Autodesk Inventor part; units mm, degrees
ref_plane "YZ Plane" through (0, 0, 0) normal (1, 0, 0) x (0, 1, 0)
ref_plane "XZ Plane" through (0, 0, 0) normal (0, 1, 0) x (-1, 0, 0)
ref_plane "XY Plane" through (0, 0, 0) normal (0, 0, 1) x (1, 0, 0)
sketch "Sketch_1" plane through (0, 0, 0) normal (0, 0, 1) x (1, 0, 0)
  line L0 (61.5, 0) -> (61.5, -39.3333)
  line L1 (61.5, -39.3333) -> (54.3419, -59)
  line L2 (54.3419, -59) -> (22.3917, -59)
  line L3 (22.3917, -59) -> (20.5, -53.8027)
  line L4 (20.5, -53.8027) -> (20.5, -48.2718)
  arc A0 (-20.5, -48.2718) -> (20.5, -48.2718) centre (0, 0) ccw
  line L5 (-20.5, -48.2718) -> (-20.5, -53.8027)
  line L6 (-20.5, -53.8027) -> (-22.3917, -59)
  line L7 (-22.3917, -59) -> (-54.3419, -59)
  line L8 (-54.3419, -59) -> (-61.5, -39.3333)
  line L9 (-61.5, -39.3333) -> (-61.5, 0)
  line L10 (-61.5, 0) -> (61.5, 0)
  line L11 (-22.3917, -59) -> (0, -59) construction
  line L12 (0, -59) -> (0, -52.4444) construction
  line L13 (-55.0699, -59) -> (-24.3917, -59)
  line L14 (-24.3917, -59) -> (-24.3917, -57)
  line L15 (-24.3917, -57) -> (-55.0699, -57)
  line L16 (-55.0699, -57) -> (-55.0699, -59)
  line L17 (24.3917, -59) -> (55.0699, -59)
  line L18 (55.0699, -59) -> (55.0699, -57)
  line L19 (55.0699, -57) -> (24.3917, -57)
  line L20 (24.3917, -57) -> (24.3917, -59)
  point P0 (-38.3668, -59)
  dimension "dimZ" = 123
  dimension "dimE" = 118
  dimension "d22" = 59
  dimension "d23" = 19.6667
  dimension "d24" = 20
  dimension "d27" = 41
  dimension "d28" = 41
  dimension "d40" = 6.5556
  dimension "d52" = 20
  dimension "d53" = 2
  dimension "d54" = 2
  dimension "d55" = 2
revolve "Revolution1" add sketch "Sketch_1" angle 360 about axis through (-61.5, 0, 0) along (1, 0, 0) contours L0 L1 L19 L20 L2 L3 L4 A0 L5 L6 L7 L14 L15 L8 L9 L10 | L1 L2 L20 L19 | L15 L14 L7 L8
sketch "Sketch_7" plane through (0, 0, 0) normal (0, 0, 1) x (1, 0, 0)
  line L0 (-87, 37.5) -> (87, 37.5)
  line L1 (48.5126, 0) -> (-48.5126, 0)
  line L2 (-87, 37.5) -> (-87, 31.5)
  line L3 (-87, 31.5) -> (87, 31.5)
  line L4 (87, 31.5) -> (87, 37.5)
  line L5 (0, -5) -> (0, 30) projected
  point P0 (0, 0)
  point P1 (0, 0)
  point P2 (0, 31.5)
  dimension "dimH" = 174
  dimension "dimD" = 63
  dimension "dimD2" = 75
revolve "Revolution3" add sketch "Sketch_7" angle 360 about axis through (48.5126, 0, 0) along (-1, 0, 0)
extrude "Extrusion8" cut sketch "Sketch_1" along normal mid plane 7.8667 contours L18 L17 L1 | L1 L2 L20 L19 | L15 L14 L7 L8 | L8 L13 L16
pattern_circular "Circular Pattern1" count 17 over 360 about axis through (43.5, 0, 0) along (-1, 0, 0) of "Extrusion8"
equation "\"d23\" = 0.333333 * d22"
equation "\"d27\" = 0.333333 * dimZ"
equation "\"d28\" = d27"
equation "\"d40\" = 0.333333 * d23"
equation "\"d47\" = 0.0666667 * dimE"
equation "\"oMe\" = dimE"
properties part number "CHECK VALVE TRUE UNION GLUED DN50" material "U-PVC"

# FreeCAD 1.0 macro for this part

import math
import FreeCAD as App
import Part
import Sketcher
from FreeCAD import Vector
Q = App.Units.Quantity

doc = App.newDocument("Part")
body = doc.addObject("PartDesign::Body", "Body")

sketch1 = doc.addObject("Sketcher::SketchObject", "Sketch")
body.addObject(sketch1)
sketch1.AttachmentSupport = (doc.XY_Plane, [""])
sketch1.MapMode = "FlatFace"
sketch1.addGeometry(Part.LineSegment(Vector(62, -39, 0), Vector(62, 0, 0)), False)
sketch1.addGeometry(Part.LineSegment(Vector(62, 0, 0), Vector(-62, 0, 0)), False)
sketch1.addGeometry(Part.LineSegment(Vector(-62, 0, 0), Vector(-62, -39, 0)), False)
sketch1.addGeometry(Part.LineSegment(Vector(-62, -39, 0), Vector(-54, -59, 0)), False)
sketch1.addGeometry(Part.LineSegment(Vector(-54, -59, 0), Vector(-22, -59, 0)), False)
sketch1.addGeometry(Part.LineSegment(Vector(-22, -59, 0), Vector(-20, -54, 0)), False)
sketch1.addGeometry(Part.LineSegment(Vector(-20, -54, 0), Vector(-20, -48, 0)), False)
sketch1.addGeometry(Part.ArcOfCircle(Part.Circle(Vector(0, 0, 0), Vector(0, 0, 1), 52), math.radians(-113), math.radians(-67)), False)
sketch1.addGeometry(Part.LineSegment(Vector(20, -48, 0), Vector(20, -54, 0)), False)
sketch1.addGeometry(Part.LineSegment(Vector(20, -54, 0), Vector(22, -59, 0)), False)
sketch1.addGeometry(Part.LineSegment(Vector(22, -59, 0), Vector(54, -59, 0)), False)
sketch1.addGeometry(Part.LineSegment(Vector(54, -59, 0), Vector(62, -39, 0)), False)
sketch1.addConstraint(Sketcher.Constraint("Coincident", 0, 2, 1, 1))
sketch1.addConstraint(Sketcher.Constraint("Coincident", 1, 2, 2, 1))
sketch1.addConstraint(Sketcher.Constraint("Coincident", 2, 2, 3, 1))
sketch1.addConstraint(Sketcher.Constraint("Coincident", 3, 2, 4, 1))
sketch1.addConstraint(Sketcher.Constraint("Coincident", 4, 2, 5, 1))
sketch1.addConstraint(Sketcher.Constraint("Coincident", 5, 2, 6, 1))
sketch1.addConstraint(Sketcher.Constraint("Coincident", 6, 2, 7, 1))
sketch1.addConstraint(Sketcher.Constraint("Coincident", 7, 2, 8, 1))
sketch1.addConstraint(Sketcher.Constraint("Coincident", 8, 2, 9, 1))
sketch1.addConstraint(Sketcher.Constraint("Coincident", 9, 2, 10, 1))
sketch1.addConstraint(Sketcher.Constraint("Coincident", 10, 2, 11, 1))
sketch1.addConstraint(Sketcher.Constraint("Coincident", 11, 2, 0, 1))
sketch1.addConstraint(Sketcher.Constraint("Vertical", 0))
sketch1.addConstraint(Sketcher.Constraint("Horizontal", 1))
sketch1.addConstraint(Sketcher.Constraint("Vertical", 2))
sketch1.addConstraint(Sketcher.Constraint("Horizontal", 4))
sketch1.addConstraint(Sketcher.Constraint("Vertical", 6))
sketch1.addConstraint(Sketcher.Constraint("Vertical", 8))
sketch1.addConstraint(Sketcher.Constraint("Horizontal", 10))
sketch1.addConstraint(Sketcher.Constraint("Coincident", 7, 3, -1, 1))
sketch1.addConstraint(Sketcher.Constraint("Symmetric", 0, 2, 1, 2, -1, 1))
sketch1.addConstraint(Sketcher.Constraint("Symmetric", 5, 2, 8, 2, -2))
sketch1.addConstraint(Sketcher.Constraint("Symmetric", 4, 2, 9, 2, -2))
sketch1.addConstraint(Sketcher.Constraint("Parallel", 3, 9))
sketch1.addConstraint(Sketcher.Constraint("Parallel", 5, 11))
sketch1.addConstraint(Sketcher.Constraint("Horizontal", 2, 2, 11, 2))
sketch1.addConstraint(Sketcher.Constraint("DistanceX", 1, 2, 1, 1, 123.0))
sketch1.addConstraint(Sketcher.Constraint("DistanceY", 3, 2, -1, 1, 59.0))
sketch1.addConstraint(Sketcher.Constraint("DistanceX", 2, 2, 5, 2, 41.0))
sketch1.addConstraint(Sketcher.Constraint("Angle", 3, Q("-70 deg")))
sketch1.addConstraint(Sketcher.Constraint("Radius", 7, 52.4444))
sketch1.addConstraint(Sketcher.Constraint("DistanceY", 3, 2, 2, 2, 19.6667))
sketch1.addConstraint(Sketcher.Constraint("DistanceY", 6, 1, 6, 2, 5.531))
revolution = doc.addObject("PartDesign::Revolution", "Revolution")
body.addObject(revolution)
revolution.Profile = sketch1
revolution.ReferenceAxis = (sketch1, ["H_Axis"])
revolution.Angle = 360

sketch2 = doc.addObject("Sketcher::SketchObject", "Sketch001")
body.addObject(sketch2)
sketch2.AttachmentSupport = (doc.XY_Plane, [""])
sketch2.MapMode = "FlatFace"
sketch2.addGeometry(Part.LineSegment(Vector(87, 38, 0), Vector(-87, 38, 0)), False)
sketch2.addGeometry(Part.LineSegment(Vector(-87, 38, 0), Vector(-87, 32, 0)), False)
sketch2.addGeometry(Part.LineSegment(Vector(-87, 32, 0), Vector(87, 32, 0)), False)
sketch2.addGeometry(Part.LineSegment(Vector(87, 32, 0), Vector(87, 38, 0)), False)
sketch2.addConstraint(Sketcher.Constraint("Coincident", 0, 2, 1, 1))
sketch2.addConstraint(Sketcher.Constraint("Coincident", 1, 2, 2, 1))
sketch2.addConstraint(Sketcher.Constraint("Coincident", 2, 2, 3, 1))
sketch2.addConstraint(Sketcher.Constraint("Coincident", 3, 2, 0, 1))
sketch2.addConstraint(Sketcher.Constraint("Horizontal", 0))
sketch2.addConstraint(Sketcher.Constraint("Vertical", 1))
sketch2.addConstraint(Sketcher.Constraint("Horizontal", 2))
sketch2.addConstraint(Sketcher.Constraint("Vertical", 3))
sketch2.addConstraint(Sketcher.Constraint("DistanceX", 0, 2, 0, 1, 174.0))
sketch2.addConstraint(Sketcher.Constraint("DistanceY", 1, 2, 1, 1, 6.0))
sketch2.addConstraint(Sketcher.Constraint("DistanceX", 0, 2, -1, 1, 87.0))
sketch2.addConstraint(Sketcher.Constraint("DistanceY", -1, 1, 0, 2, 37.5))
revolution2 = doc.addObject("PartDesign::Revolution", "Revolution001")
body.addObject(revolution2)
revolution2.Profile = sketch2
revolution2.ReferenceAxis = (sketch2, ["H_Axis"])
revolution2.Angle = 360

sketch3 = doc.addObject("Sketcher::SketchObject", "Sketch002")
body.addObject(sketch3)
sketch3.AttachmentSupport = (doc.XY_Plane, [""])
sketch3.MapMode = "FlatFace"
sketch3.addGeometry(Part.LineSegment(Vector(55.1, -59, 0), Vector(55.1, -57, 0)), False)
sketch3.addGeometry(Part.LineSegment(Vector(55.1, -57, 0), Vector(24.4, -57, 0)), False)
sketch3.addGeometry(Part.LineSegment(Vector(24.4, -57, 0), Vector(24.4, -59, 0)), False)
sketch3.addGeometry(Part.LineSegment(Vector(24.4, -59, 0), Vector(55.1, -59, 0)), False)
sketch3.addGeometry(Part.LineSegment(Vector(-24.4, -57, 0), Vector(-55.1, -57, 0)), False)
sketch3.addGeometry(Part.LineSegment(Vector(-55.1, -57, 0), Vector(-55.1, -59, 0)), False)
sketch3.addGeometry(Part.LineSegment(Vector(-55.1, -59, 0), Vector(-24.4, -59, 0)), False)
sketch3.addGeometry(Part.LineSegment(Vector(-24.4, -59, 0), Vector(-24.4, -57, 0)), False)
sketch3.addConstraint(Sketcher.Constraint("Coincident", 0, 2, 1, 1))
sketch3.addConstraint(Sketcher.Constraint("Coincident", 1, 2, 2, 1))
sketch3.addConstraint(Sketcher.Constraint("Coincident", 2, 2, 3, 1))
sketch3.addConstraint(Sketcher.Constraint("Coincident", 3, 2, 0, 1))
sketch3.addConstraint(Sketcher.Constraint("Coincident", 4, 2, 5, 1))
sketch3.addConstraint(Sketcher.Constraint("Coincident", 5, 2, 6, 1))
sketch3.addConstraint(Sketcher.Constraint("Coincident", 6, 2, 7, 1))
sketch3.addConstraint(Sketcher.Constraint("Coincident", 7, 2, 4, 1))
sketch3.addConstraint(Sketcher.Constraint("Vertical", 0))
sketch3.addConstraint(Sketcher.Constraint("Horizontal", 1))
sketch3.addConstraint(Sketcher.Constraint("Vertical", 2))
sketch3.addConstraint(Sketcher.Constraint("Horizontal", 3))
sketch3.addConstraint(Sketcher.Constraint("Horizontal", 4))
sketch3.addConstraint(Sketcher.Constraint("Vertical", 5))
sketch3.addConstraint(Sketcher.Constraint("Horizontal", 6))
sketch3.addConstraint(Sketcher.Constraint("Vertical", 7))
sketch3.addConstraint(Sketcher.Constraint("Symmetric", 0, 2, 4, 2, -2))
sketch3.addConstraint(Sketcher.Constraint("Symmetric", 2, 2, 6, 2, -2))
sketch3.addConstraint(Sketcher.Constraint("DistanceY", 0, 1, 0, 2, 2.0))
sketch3.addConstraint(Sketcher.Constraint("DistanceY", 2, 2, -1, 1, 59.0))
sketch3.addConstraint(Sketcher.Constraint("DistanceX", -1, 1, 0, 2, 55.07))
sketch3.addConstraint(Sketcher.Constraint("DistanceX", 1, 2, 1, 1, 30.6782))
pocket1 = doc.addObject("PartDesign::Pocket", "Pocket")
body.addObject(pocket1)
pocket1.Profile = sketch3
pocket1.Length = 7.8667
pocket1.Midplane = True
doc.recompute()

polarpattern = doc.addObject("PartDesign::PolarPattern", "PolarPattern")
body.addObject(polarpattern)
polarpattern.Originals = [pocket1]
polarpattern.Axis = (doc.X_Axis, [""])
polarpattern.Angle = 360
polarpattern.Occurrences = 17
body.Tip = polarpattern

doc.recompute()
